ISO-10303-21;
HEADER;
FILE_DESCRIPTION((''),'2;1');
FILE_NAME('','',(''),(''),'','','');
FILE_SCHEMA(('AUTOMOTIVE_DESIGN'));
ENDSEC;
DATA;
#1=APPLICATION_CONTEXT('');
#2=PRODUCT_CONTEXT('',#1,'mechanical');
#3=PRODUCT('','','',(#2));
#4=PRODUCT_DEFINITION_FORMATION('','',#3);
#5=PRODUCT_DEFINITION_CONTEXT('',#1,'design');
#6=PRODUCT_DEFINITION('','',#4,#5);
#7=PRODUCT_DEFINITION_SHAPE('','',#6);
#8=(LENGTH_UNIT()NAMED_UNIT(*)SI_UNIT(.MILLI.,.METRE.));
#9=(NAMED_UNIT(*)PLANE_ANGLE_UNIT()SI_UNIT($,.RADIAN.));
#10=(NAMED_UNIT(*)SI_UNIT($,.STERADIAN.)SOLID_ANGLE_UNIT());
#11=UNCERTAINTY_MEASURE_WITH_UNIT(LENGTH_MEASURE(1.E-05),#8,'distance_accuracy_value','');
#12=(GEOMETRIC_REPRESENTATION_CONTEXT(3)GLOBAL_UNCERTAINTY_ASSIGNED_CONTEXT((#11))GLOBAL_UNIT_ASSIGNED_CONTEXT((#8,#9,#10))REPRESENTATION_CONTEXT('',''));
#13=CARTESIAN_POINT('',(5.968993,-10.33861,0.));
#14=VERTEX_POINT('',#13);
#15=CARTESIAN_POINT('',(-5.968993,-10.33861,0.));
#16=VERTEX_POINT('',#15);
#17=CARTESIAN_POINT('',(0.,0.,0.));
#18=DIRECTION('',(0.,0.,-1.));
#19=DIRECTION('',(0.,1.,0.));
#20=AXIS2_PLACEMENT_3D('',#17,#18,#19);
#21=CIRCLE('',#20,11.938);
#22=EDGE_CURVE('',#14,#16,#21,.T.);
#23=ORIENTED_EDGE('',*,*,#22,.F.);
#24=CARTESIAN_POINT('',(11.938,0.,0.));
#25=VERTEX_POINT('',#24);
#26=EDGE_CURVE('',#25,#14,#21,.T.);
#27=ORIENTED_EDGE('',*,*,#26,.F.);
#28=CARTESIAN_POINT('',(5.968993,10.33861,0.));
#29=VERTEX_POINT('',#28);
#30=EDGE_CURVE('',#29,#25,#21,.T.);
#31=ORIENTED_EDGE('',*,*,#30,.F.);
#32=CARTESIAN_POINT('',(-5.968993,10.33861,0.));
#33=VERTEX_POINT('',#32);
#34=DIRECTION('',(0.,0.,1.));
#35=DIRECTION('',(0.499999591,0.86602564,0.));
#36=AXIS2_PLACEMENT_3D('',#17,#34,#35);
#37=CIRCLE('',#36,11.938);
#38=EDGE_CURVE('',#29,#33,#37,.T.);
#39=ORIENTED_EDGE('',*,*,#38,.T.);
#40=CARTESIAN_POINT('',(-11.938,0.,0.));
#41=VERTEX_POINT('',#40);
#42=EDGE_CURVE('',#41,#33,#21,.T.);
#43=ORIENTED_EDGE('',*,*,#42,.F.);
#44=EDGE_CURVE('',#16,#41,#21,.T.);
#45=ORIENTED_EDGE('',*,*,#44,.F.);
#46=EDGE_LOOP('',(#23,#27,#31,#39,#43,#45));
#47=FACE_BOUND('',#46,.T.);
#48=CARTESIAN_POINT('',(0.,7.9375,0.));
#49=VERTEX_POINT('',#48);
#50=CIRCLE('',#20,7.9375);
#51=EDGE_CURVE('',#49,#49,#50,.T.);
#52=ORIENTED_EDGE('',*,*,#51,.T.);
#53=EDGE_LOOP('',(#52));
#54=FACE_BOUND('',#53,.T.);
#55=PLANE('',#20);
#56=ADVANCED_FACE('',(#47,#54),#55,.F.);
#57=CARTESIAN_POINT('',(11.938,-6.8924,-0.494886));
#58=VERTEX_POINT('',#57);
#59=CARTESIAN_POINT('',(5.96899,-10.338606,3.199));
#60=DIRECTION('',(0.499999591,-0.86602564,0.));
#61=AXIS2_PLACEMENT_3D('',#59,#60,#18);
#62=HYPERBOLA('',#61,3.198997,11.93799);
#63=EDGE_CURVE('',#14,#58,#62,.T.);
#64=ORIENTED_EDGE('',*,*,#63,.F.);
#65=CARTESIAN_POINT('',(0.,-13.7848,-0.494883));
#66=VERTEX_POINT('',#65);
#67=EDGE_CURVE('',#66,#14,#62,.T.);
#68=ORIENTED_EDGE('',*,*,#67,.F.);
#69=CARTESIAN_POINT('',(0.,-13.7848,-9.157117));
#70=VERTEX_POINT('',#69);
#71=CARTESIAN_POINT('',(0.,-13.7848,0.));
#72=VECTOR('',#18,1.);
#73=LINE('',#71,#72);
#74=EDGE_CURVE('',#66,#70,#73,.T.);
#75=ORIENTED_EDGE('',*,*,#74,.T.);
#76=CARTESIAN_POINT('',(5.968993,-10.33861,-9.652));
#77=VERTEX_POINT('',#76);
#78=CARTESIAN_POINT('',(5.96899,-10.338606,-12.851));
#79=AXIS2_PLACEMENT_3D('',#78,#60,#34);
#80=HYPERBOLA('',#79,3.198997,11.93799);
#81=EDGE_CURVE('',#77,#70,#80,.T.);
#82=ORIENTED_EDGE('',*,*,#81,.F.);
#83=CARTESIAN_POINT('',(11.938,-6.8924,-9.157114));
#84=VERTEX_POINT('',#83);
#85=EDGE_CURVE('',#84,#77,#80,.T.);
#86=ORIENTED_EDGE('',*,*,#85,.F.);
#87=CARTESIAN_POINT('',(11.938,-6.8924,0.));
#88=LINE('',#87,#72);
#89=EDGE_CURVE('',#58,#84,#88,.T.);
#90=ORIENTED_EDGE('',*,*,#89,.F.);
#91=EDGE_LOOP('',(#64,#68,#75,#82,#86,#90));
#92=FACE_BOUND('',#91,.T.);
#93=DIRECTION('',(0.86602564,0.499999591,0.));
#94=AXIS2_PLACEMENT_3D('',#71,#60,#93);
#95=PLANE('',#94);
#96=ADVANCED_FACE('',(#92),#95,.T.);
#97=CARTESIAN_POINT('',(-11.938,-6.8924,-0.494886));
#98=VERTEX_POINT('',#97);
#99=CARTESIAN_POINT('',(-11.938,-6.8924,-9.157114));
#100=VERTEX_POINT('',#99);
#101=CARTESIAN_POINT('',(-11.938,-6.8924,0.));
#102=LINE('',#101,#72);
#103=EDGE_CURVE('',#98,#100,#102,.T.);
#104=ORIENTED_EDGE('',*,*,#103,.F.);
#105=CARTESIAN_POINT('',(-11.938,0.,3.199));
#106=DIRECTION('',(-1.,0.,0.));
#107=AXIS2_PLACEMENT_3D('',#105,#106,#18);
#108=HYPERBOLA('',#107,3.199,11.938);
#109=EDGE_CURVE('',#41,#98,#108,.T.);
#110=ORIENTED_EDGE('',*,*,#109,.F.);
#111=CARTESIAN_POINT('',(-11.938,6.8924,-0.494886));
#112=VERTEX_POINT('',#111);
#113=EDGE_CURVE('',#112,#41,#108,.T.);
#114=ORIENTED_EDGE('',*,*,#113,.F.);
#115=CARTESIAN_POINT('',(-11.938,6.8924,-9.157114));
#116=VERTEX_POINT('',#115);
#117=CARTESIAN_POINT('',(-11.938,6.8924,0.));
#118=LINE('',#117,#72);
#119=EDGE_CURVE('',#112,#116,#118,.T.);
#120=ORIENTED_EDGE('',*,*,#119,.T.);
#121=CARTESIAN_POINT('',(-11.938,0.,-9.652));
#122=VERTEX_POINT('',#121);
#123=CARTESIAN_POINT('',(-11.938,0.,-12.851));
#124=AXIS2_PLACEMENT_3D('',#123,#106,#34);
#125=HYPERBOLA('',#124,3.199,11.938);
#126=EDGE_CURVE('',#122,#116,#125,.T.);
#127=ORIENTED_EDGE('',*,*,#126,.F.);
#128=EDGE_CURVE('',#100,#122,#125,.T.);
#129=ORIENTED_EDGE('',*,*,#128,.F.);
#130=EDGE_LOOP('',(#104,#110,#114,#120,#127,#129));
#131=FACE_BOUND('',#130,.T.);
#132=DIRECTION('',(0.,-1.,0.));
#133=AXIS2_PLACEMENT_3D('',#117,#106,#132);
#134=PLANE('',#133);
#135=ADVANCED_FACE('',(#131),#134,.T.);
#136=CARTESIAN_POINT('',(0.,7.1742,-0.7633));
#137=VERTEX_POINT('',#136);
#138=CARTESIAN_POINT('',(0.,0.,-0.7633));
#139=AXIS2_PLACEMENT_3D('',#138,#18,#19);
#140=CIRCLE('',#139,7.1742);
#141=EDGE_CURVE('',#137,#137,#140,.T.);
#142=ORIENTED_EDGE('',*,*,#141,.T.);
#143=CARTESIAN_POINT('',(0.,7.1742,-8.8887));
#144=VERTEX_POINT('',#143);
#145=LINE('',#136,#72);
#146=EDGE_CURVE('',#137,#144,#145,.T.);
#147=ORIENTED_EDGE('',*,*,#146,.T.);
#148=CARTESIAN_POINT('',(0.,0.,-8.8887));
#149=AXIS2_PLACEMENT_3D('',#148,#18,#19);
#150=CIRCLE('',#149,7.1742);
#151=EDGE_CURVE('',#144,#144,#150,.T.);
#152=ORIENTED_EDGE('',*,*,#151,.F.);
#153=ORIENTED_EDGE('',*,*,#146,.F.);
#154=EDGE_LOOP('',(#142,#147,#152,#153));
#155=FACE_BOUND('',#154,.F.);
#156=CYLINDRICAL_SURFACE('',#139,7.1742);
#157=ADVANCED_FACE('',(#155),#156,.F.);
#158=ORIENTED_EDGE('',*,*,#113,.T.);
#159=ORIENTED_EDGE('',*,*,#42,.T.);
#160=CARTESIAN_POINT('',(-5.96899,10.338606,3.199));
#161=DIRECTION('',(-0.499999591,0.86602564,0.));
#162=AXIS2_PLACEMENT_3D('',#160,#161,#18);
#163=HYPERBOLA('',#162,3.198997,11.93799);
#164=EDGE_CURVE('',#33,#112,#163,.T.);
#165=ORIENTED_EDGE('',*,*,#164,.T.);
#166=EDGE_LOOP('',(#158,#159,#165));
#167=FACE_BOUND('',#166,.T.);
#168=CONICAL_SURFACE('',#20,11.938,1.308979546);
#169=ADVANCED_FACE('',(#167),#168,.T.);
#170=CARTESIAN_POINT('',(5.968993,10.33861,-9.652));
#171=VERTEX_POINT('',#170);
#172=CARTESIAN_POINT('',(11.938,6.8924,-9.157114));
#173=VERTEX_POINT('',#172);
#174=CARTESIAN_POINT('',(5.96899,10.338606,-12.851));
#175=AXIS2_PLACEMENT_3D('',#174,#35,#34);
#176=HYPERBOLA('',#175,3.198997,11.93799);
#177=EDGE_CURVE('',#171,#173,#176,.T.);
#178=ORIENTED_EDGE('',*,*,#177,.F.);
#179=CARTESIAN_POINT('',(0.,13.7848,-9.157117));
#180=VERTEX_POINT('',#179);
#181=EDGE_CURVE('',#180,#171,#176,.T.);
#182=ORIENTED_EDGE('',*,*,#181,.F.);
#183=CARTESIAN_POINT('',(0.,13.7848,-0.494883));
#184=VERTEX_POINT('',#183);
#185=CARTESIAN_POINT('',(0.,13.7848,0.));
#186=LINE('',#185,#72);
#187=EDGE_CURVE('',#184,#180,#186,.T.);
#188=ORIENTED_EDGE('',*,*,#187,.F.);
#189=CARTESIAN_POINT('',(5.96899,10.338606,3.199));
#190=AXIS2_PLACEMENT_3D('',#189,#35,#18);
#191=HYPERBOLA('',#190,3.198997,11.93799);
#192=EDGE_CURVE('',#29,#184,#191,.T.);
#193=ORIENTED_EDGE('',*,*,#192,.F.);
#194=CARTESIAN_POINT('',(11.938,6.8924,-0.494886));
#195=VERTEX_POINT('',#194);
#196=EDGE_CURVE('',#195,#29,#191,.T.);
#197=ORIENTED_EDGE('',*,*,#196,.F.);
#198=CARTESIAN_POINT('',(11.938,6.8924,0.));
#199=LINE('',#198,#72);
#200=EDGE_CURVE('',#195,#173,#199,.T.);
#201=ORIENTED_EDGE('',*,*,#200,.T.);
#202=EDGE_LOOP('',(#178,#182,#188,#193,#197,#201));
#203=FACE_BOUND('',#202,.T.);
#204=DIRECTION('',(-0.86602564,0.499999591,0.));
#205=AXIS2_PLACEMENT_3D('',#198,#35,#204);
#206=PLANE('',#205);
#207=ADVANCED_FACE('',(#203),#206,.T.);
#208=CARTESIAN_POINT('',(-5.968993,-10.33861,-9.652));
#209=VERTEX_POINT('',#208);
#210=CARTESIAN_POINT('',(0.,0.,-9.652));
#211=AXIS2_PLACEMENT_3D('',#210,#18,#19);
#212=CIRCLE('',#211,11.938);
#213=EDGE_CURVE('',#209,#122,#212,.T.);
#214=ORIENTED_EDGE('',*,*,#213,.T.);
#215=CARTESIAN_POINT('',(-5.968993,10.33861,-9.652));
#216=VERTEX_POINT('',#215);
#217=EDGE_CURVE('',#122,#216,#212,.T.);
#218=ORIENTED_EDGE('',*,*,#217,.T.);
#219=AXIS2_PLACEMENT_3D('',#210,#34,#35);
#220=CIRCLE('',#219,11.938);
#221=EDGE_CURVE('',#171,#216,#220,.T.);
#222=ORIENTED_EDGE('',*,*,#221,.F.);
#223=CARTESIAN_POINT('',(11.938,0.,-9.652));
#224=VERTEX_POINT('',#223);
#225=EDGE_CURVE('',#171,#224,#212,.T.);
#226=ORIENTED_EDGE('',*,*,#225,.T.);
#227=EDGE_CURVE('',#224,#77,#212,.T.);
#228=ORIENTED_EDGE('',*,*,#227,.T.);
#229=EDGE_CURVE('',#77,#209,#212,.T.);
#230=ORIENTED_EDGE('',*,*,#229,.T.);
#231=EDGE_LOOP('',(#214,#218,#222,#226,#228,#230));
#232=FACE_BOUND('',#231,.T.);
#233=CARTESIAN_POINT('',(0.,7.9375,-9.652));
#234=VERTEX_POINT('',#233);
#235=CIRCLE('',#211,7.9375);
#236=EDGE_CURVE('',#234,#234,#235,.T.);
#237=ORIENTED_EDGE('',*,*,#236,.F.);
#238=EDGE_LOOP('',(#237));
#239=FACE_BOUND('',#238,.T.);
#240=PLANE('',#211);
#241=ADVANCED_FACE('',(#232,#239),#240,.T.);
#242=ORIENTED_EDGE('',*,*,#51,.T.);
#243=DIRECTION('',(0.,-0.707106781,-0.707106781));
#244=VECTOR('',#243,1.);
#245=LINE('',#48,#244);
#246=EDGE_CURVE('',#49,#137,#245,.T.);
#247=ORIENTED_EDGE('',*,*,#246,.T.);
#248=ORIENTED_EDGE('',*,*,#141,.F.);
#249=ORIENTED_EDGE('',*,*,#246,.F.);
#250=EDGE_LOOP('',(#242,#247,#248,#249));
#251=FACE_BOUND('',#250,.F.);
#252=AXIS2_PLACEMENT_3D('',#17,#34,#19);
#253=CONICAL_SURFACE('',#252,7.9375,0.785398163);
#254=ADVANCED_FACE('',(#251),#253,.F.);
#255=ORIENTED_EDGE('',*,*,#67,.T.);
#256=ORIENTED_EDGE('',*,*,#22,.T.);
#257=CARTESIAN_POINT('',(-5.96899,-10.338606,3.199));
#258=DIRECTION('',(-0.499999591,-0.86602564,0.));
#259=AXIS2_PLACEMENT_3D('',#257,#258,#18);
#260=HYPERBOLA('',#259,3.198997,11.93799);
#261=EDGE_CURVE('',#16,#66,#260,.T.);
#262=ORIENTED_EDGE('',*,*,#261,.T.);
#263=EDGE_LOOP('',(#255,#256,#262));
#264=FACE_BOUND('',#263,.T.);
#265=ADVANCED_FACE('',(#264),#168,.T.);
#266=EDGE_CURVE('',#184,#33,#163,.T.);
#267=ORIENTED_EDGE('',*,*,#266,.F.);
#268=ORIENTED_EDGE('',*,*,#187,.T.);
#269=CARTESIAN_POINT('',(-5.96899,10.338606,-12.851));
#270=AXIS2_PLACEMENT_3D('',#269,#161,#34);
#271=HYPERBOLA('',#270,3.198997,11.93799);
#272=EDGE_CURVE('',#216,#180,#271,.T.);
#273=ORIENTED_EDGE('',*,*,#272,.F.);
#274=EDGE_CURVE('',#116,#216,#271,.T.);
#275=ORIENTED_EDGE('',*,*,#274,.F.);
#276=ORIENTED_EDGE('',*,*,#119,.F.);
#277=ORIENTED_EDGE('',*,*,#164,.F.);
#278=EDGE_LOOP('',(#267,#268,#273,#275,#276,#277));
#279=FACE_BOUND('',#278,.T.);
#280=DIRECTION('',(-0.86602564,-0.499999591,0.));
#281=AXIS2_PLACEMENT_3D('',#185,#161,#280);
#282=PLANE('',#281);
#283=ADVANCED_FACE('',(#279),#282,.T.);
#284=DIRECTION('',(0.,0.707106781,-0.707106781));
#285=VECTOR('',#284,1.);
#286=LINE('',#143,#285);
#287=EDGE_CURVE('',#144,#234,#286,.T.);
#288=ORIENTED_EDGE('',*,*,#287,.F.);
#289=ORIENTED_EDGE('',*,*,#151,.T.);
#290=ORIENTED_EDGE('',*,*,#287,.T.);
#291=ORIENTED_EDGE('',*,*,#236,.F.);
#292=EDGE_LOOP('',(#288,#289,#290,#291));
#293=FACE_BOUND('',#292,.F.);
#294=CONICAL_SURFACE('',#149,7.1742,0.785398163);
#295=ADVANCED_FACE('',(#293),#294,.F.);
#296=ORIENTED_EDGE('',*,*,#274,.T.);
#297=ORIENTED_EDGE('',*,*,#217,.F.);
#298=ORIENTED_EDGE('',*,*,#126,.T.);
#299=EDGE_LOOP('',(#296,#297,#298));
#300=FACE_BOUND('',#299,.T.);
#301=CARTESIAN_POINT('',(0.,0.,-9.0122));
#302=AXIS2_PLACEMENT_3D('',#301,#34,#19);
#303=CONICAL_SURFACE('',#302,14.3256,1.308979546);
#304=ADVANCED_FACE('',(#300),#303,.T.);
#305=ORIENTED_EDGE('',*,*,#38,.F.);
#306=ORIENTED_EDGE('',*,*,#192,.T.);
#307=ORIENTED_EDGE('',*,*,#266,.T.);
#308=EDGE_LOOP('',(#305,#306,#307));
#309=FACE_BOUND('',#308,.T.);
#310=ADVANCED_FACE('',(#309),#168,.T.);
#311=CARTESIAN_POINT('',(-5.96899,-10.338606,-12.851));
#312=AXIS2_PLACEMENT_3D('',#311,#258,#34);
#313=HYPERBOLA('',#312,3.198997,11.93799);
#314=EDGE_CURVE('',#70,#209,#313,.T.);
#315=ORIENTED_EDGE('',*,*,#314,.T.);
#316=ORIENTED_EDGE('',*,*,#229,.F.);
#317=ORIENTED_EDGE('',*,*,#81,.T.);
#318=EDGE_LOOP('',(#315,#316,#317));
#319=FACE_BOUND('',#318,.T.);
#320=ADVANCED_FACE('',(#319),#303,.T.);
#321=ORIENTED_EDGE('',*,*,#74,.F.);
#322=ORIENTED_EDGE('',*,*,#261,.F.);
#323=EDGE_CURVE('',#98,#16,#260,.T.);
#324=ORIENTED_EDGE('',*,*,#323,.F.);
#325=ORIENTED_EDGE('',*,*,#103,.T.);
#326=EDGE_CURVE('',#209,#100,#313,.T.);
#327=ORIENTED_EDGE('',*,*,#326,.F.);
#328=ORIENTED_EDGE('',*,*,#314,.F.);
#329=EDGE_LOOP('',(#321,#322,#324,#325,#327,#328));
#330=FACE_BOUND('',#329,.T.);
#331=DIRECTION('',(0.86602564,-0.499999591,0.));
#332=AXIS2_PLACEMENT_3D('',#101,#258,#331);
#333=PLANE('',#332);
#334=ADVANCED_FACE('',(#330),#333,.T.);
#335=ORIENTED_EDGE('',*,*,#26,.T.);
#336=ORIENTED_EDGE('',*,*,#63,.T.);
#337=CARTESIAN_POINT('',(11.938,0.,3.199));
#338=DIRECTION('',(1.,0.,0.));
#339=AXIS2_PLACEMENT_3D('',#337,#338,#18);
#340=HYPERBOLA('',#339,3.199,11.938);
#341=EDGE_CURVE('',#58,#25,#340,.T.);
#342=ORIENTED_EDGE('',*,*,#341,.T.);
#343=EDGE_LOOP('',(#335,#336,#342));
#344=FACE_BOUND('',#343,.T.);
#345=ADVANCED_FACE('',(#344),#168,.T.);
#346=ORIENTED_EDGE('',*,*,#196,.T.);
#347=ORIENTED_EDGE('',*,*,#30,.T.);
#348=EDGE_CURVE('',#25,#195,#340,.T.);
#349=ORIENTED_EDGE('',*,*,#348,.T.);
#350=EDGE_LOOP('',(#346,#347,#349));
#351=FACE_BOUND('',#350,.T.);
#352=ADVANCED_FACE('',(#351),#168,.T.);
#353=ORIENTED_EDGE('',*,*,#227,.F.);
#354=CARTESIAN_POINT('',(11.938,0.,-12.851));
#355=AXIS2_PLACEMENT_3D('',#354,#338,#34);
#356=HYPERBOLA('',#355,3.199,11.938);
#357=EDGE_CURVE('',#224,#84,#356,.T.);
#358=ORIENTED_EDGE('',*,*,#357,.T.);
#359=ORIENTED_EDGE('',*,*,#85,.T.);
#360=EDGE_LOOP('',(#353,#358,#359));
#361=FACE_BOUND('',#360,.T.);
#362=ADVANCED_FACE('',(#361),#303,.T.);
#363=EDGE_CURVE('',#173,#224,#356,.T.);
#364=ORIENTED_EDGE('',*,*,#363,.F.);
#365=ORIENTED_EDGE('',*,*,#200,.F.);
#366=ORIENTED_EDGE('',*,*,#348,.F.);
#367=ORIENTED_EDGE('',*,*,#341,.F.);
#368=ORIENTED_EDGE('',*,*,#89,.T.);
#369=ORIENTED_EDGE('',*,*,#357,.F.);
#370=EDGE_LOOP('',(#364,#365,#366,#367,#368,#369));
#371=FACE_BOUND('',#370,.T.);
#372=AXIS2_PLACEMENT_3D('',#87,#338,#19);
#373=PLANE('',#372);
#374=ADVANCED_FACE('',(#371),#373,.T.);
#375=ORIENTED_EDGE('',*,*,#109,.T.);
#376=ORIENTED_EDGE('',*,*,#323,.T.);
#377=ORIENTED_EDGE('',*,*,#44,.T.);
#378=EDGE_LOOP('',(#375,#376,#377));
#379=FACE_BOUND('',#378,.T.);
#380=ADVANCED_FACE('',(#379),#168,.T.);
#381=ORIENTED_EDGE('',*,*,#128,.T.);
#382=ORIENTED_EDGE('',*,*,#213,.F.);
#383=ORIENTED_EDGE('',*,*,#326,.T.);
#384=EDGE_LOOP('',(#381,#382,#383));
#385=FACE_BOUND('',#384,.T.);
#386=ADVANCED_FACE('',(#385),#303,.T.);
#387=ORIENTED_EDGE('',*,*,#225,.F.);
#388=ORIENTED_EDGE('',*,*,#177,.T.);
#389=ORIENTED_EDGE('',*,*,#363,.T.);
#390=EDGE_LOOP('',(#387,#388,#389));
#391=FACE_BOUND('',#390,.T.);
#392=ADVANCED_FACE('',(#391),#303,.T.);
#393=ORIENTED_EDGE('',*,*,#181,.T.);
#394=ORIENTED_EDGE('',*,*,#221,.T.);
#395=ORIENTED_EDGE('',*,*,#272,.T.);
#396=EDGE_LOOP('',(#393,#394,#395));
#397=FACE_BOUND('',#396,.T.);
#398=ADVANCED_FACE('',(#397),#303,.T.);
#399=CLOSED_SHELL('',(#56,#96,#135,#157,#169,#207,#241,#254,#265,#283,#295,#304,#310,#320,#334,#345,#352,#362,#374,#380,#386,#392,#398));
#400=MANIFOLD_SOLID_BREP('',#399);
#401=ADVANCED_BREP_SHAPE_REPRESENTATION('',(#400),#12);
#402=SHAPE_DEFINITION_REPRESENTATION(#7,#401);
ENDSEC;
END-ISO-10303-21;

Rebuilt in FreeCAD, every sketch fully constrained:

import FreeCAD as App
import Part
import Sketcher

V = App.Vector
Q = App.Units.Quantity

doc = App.newDocument("Part")
body = doc.addObject("PartDesign::Body", "Body")

# Sketch on YZ plane
sketch1 = body.newObject("Sketcher::SketchObject", "Sketch")
sketch1.AttachmentSupport = (doc.getObject("YZ_Plane"), [""])
sketch1.MapMode = "FlatFace"
sketch1.addGeometry([
    Part.LineSegment(V(0, 0, 0), V(0, -9.7, 0)),  # 0
    Part.LineSegment(V(0, -9.7, 0), V(11.9, -9.7, 0)),  # 1
    Part.LineSegment(V(11.9, -9.7, 0), V(14.3, -9, 0)),  # 2
    Part.LineSegment(V(14.3, -9, 0), V(14.3, -0.6, 0)),  # 3
    Part.LineSegment(V(14.3, -0.6, 0), V(11.9, 0, 0)),  # 4
    Part.LineSegment(V(11.9, 0, 0), V(0, 0, 0)),  # 5
], False)
sketch1.addConstraint([
    Sketcher.Constraint("Coincident", 0, 2, 1, 1),
    Sketcher.Constraint("Coincident", 1, 2, 2, 1),
    Sketcher.Constraint("Coincident", 2, 2, 3, 1),
    Sketcher.Constraint("Coincident", 3, 2, 4, 1),
    Sketcher.Constraint("Coincident", 4, 2, 5, 1),
    Sketcher.Constraint("Coincident", 5, 2, 0, 1),
    Sketcher.Constraint("Vertical", 0),
    Sketcher.Constraint("Horizontal", 1),
    Sketcher.Constraint("Vertical", 3),
    Sketcher.Constraint("Horizontal", 5),
    Sketcher.Constraint("Coincident", 5, 2, -1, 1),
    Sketcher.Constraint("Vertical", 1, 2, 4, 2),
    Sketcher.Constraint("Equal", 2, 4),
    Sketcher.Constraint("Angle", 2, Q("15.001 deg")),
    Sketcher.Constraint("DistanceX", 1, 1, 1, 2, Q("0.47 in")),
    Sketcher.Constraint("DistanceY", 0, 2, 0, 1, Q("0.38 in")),
    Sketcher.Constraint("DistanceX", -1, 1, 2, 2, Q("0.564 in")),
])
revolution = body.newObject("PartDesign::Revolution", "Revolution")
revolution.Profile = sketch1
revolution.ReferenceAxis = (sketch1, ["V_Axis"])
revolution.Angle = 360

# Sketch on XY plane
sketch2 = body.newObject("Sketcher::SketchObject", "Sketch001")
sketch2.AttachmentSupport = (doc.getObject("XY_Plane"), [""])
sketch2.MapMode = "FlatFace"
sketch2.addGeometry([
    Part.LineSegment(V(24, 24, 0), V(-24, 24, 0)),  # 0
    Part.LineSegment(V(-24, 24, 0), V(-24, -24, 0)),  # 1
    Part.LineSegment(V(-24, -24, 0), V(24, -24, 0)),  # 2
    Part.LineSegment(V(24, -24, 0), V(24, 24, 0)),  # 3
    Part.LineSegment(V(-12, -7, 0), V(-12, 7, 0)),  # 4
    Part.LineSegment(V(-12, 7, 0), V(0, 14, 0)),  # 5
    Part.LineSegment(V(0, 14, 0), V(12, 7, 0)),  # 6
    Part.LineSegment(V(12, 7, 0), V(12, -7, 0)),  # 7
    Part.LineSegment(V(12, -7, 0), V(0, -14, 0)),  # 8
    Part.LineSegment(V(0, -14, 0), V(-12, -7, 0)),  # 9
], False)
sketch2.addConstraint([
    Sketcher.Constraint("Coincident", 0, 2, 1, 1),
    Sketcher.Constraint("Coincident", 1, 2, 2, 1),
    Sketcher.Constraint("Coincident", 2, 2, 3, 1),
    Sketcher.Constraint("Coincident", 3, 2, 0, 1),
    Sketcher.Constraint("Coincident", 4, 2, 5, 1),
    Sketcher.Constraint("Coincident", 5, 2, 6, 1),
    Sketcher.Constraint("Coincident", 6, 2, 7, 1),
    Sketcher.Constraint("Coincident", 7, 2, 8, 1),
    Sketcher.Constraint("Coincident", 8, 2, 9, 1),
    Sketcher.Constraint("Coincident", 9, 2, 4, 1),
    Sketcher.Constraint("Horizontal", 0),
    Sketcher.Constraint("Vertical", 1),
    Sketcher.Constraint("Horizontal", 2),
    Sketcher.Constraint("Vertical", 3),
    Sketcher.Constraint("Vertical", 4),
    Sketcher.Constraint("Vertical", 7),
    Sketcher.Constraint("Symmetric", 0, 2, 2, 2, -1, 1),
    Sketcher.Constraint("Symmetric", 4, 2, 7, 2, -1, 1),
    Sketcher.Constraint("Symmetric", 5, 2, 8, 2, -1, 1),
    Sketcher.Constraint("PointOnObject", 5, 2, -2),
    Sketcher.Constraint("Parallel", 6, 9),
    Sketcher.Constraint("Horizontal", 4, 2, 6, 2),
    Sketcher.Constraint("Equal", 2, 1),
    Sketcher.Constraint("Angle", 5, Q("30 deg")),
    Sketcher.Constraint("DistanceX", 0, 2, 0, 1, Q("1.88 in")),
    Sketcher.Constraint("DistanceX", 4, 2, -1, 1, Q("0.47 in")),
    Sketcher.Constraint("DistanceY", 4, 1, 4, 2, Q("0.5427 in")),
])
pocket1 = body.newObject("PartDesign::Pocket", "Pocket")
pocket1.Profile = sketch2
pocket1.Length = Q("0.38 in")

# Sketch on YZ plane
sketch3 = body.newObject("Sketcher::SketchObject", "Sketch002")
sketch3.AttachmentSupport = (doc.getObject("YZ_Plane"), [""])
sketch3.MapMode = "FlatFace"
sketch3.addGeometry([
    Part.LineSegment(V(0, 0, 0), V(0, -9.7, 0)),  # 0
    Part.LineSegment(V(0, -9.7, 0), V(7.9, -9.7, 0)),  # 1
    Part.LineSegment(V(7.9, -9.7, 0), V(7.2, -8.9, 0)),  # 2
    Part.LineSegment(V(7.2, -8.9, 0), V(7.2, -0.8, 0)),  # 3
    Part.LineSegment(V(7.2, -0.8, 0), V(7.9, 0, 0)),  # 4
    Part.LineSegment(V(7.9, 0, 0), V(0, 0, 0)),  # 5
], False)
sketch3.addConstraint([
    Sketcher.Constraint("Coincident", 0, 2, 1, 1),
    Sketcher.Constraint("Coincident", 1, 2, 2, 1),
    Sketcher.Constraint("Coincident", 2, 2, 3, 1),
    Sketcher.Constraint("Coincident", 3, 2, 4, 1),
    Sketcher.Constraint("Coincident", 4, 2, 5, 1),
    Sketcher.Constraint("Coincident", 5, 2, 0, 1),
    Sketcher.Constraint("Vertical", 0),
    Sketcher.Constraint("Horizontal", 1),
    Sketcher.Constraint("Vertical", 3),
    Sketcher.Constraint("Horizontal", 5),
    Sketcher.Constraint("Coincident", 5, 2, -1, 1),
    Sketcher.Constraint("Perpendicular", 2, 4),
    Sketcher.Constraint("Vertical", 1, 2, 4, 2),
    Sketcher.Constraint("Equal", 2, 4),
    Sketcher.Constraint("DistanceY", 0, 2, 0, 1, Q("0.38 in")),
    Sketcher.Constraint("DistanceX", 1, 1, 1, 2, Q("0.3125 in")),
    Sketcher.Constraint("DistanceY", 3, 1, 3, 2, Q("0.3199 in")),
])
groove = body.newObject("PartDesign::Groove", "Groove")
groove.Profile = sketch3
groove.ReferenceAxis = (sketch3, ["V_Axis"])
groove.Angle = 360

doc.recompute()
